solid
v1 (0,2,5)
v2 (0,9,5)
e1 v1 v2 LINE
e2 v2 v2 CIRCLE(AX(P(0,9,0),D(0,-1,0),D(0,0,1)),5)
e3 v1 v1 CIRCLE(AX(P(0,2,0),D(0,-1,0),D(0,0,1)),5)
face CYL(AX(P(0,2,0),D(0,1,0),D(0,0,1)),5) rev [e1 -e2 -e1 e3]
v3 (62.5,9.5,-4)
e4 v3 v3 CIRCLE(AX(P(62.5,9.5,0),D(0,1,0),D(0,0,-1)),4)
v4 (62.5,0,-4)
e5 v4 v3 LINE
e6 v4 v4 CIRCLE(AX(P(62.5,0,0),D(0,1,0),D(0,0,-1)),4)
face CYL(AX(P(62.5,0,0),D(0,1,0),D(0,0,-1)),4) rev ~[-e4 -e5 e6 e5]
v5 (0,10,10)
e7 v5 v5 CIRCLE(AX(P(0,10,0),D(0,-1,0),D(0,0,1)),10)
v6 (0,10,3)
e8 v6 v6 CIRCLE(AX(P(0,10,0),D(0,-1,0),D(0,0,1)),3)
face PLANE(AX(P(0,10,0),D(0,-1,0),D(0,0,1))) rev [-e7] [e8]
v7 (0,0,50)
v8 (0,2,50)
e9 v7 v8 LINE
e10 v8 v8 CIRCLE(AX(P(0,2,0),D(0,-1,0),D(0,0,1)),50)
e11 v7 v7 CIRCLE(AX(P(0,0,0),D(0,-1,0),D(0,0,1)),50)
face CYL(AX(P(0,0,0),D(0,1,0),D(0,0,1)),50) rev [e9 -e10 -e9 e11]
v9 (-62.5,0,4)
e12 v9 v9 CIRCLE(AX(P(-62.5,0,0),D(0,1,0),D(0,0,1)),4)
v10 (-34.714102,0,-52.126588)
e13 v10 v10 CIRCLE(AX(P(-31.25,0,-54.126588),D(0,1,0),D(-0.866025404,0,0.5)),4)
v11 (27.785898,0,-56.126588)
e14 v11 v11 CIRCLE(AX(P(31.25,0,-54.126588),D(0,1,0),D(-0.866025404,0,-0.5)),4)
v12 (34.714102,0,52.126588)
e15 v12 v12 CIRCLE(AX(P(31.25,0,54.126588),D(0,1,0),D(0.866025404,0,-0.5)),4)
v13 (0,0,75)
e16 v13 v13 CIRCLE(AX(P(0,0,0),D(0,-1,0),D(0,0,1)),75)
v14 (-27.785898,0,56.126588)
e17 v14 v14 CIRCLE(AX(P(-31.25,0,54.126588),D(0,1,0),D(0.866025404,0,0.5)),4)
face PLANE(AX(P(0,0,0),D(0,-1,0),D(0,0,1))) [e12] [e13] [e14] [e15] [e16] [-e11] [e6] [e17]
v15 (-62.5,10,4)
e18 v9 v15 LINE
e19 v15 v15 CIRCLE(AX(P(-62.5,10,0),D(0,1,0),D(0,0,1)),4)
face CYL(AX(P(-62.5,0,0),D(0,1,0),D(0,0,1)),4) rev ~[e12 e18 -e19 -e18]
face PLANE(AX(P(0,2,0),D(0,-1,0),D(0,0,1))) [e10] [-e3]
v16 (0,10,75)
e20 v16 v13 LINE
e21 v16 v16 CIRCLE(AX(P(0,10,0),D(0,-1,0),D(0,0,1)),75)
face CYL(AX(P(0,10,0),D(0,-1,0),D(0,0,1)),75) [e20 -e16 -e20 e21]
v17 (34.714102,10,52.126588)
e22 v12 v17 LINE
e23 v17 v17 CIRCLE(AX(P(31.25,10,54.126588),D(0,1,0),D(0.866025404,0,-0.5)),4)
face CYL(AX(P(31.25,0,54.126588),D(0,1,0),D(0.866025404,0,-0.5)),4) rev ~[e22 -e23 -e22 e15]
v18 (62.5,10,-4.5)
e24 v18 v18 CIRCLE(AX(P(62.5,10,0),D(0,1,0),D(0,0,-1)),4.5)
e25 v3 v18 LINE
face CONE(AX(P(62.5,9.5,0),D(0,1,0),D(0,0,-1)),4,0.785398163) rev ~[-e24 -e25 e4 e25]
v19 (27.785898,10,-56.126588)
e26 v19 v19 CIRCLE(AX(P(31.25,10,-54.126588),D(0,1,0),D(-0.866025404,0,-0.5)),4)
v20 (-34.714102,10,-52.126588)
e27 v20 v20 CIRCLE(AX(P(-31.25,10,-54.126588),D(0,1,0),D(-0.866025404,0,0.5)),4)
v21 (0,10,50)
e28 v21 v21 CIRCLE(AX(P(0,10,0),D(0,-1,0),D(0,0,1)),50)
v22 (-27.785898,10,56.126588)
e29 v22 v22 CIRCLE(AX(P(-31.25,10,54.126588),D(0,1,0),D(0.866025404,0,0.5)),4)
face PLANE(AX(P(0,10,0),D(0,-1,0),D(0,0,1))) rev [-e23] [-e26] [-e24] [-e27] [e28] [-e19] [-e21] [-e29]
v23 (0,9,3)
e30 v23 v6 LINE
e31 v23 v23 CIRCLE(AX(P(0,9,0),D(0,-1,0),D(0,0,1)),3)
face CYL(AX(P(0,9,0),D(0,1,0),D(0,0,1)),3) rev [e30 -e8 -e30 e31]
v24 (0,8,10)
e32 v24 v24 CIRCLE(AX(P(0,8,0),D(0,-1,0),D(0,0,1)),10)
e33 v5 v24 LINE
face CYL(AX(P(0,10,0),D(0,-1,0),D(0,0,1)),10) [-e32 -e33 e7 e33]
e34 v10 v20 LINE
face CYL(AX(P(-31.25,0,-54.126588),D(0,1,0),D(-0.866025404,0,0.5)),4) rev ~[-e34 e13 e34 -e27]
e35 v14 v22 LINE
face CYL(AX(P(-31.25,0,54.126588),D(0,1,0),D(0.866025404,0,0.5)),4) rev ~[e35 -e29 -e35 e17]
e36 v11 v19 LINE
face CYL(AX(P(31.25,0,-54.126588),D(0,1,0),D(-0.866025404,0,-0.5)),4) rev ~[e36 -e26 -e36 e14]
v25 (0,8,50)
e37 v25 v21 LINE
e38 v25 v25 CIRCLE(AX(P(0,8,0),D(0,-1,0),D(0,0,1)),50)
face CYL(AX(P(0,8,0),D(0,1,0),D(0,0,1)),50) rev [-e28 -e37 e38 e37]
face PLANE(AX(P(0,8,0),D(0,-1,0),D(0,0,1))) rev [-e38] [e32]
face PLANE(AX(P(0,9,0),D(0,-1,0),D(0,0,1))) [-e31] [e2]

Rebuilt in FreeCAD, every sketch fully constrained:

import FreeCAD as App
import Part
import Sketcher

V = App.Vector


def edges_at(feature, points):
    """Names of the edges that pass closest to the given points."""
    edges = feature.Shape.Edges
    near = lambda p: min(range(len(edges)), key=lambda i: edges[i].distToShape(Part.Vertex(*p))[0])
    return sorted({f"Edge{near(p) + 1}" for p in points})


def add_polygon(sketch, points):
    """Adds a closed chain of lines whose ends are joined by coincident constraints."""
    first, n = sketch.GeometryCount, len(points)
    for a, b in zip(points, points[1:] + points[:1]):
        sketch.addGeometry(Part.LineSegment(App.Vector(*a, 0), App.Vector(*b, 0)), False)
    for i in range(n):
        sketch.addConstraint(Sketcher.Constraint("Coincident", first + i, 2, first + (i + 1) % n, 1))

doc = App.newDocument("Part")
params = doc.addObject("Spreadsheet::Sheet", "Params")
for row, (alias, value) in enumerate([
    ("sketch1_width", "7 mm"),
    ("sketch1_width2", "1 mm"),
    ("sketch1_width3", "2 mm"),
    ("sketch1_height", "25 mm"),
    ("revolution_angle", "360 deg"),
    ("sketch2_diameter", "8 mm"),
    ("hole_diameter", "8 mm"),
    ("chamfer_size", "0.5 mm"),
], start=1):
    params.set(f"A{row}", alias)
    params.set(f"B{row}", "=" + value)
    params.setAlias(f"B{row}", alias)

body = doc.addObject("PartDesign::Body", "Body")

# Sketch on YZ plane
sketch1 = body.newObject("Sketcher::SketchObject", "Sketch")
sketch1.AttachmentSupport = (doc.getObject("YZ_Plane"), [""])
sketch1.MapMode = "FlatFace"
add_polygon(sketch1, [(2, 50), (2, 5), (9, 5), (9, 3), (10, 3), (10, 10), (8, 10), (8, 50), (10, 50), (10, 75), (0, 75), (0, 50)])  # lines 0-11
sketch1.addConstraint(Sketcher.Constraint("Vertical", 0))
sketch1.addConstraint(Sketcher.Constraint("Horizontal", 1))
sketch1.addConstraint(Sketcher.Constraint("Vertical", 2))
sketch1.addConstraint(Sketcher.Constraint("Horizontal", 3))
sketch1.addConstraint(Sketcher.Constraint("Vertical", 4))
sketch1.addConstraint(Sketcher.Constraint("Horizontal", 5))
sketch1.addConstraint(Sketcher.Constraint("Vertical", 6))
sketch1.addConstraint(Sketcher.Constraint("Horizontal", 7))
sketch1.addConstraint(Sketcher.Constraint("Vertical", 8))
sketch1.addConstraint(Sketcher.Constraint("Horizontal", 9))
sketch1.addConstraint(Sketcher.Constraint("Vertical", 10))
sketch1.addConstraint(Sketcher.Constraint("Horizontal", 11))
sketch1.addConstraint(Sketcher.Constraint("PointOnObject", 9, 2, -2))
sketch1.addConstraint(Sketcher.Constraint("Horizontal", 7, 2, 10, 2))
sketch1.addConstraint(Sketcher.Constraint("Vertical", 4, 2, 7, 2))
sketch1.addConstraint(Sketcher.Constraint("Equal", 7, 11))
sketch1.addConstraint(Sketcher.Constraint("Equal", 11, 2))
sketch1.addConstraint(Sketcher.Constraint("Equal", 1, 4))
sketch1.addConstraint(Sketcher.Constraint("DistanceX", 1, 1, 1, 2, 7.0))
sketch1.addConstraint(Sketcher.Constraint("DistanceX", 3, 1, 3, 2, 1.0))
sketch1.addConstraint(Sketcher.Constraint("DistanceX", 5, 2, 5, 1, 2.0))
sketch1.addConstraint(Sketcher.Constraint("DistanceY", 8, 1, 8, 2, 25.0))
sketch1.addConstraint(Sketcher.Constraint("DistanceY", -1, 1, 4, 2, 10.0))
sketch1.addConstraint(Sketcher.Constraint("DistanceY", 2, 2, 6, 2, 47.0))
sketch1.setExpression("Constraints[30]", "Params.sketch1_width")
sketch1.setExpression("Constraints[31]", "Params.sketch1_width2")
sketch1.setExpression("Constraints[32]", "Params.sketch1_width3")
sketch1.setExpression("Constraints[33]", "Params.sketch1_height")
revolution = body.newObject("PartDesign::Revolution", "Revolution")
revolution.Profile = sketch1
revolution.ReferenceAxis = (sketch1, ["H_Axis"])
revolution.setExpression("Angle", "Params.revolution_angle")

# Sketch on XZ plane
sketch2 = body.newObject("Sketcher::SketchObject", "Sketch001")
sketch2.AttachmentSupport = (doc.getObject("XZ_Plane"), [""])
sketch2.MapMode = "FlatFace"
sketch2.addGeometry(Part.Circle(V(62.5, 0, 0), V(0, 0, 1), 4), False)
sketch2.addConstraint(Sketcher.Constraint("PointOnObject", 0, 3, -1))
sketch2.addConstraint(Sketcher.Constraint("Diameter", 0, 8.0))
sketch2.addConstraint(Sketcher.Constraint("DistanceX", -1, 1, 0, 3, 62.5))
sketch2.setExpression("Constraints[1]", "Params.sketch2_diameter")
doc.recompute()
hole = body.newObject("PartDesign::Hole", "Hole")
hole.Profile = sketch2
hole.ThreadType = "None"
hole.setExpression("Diameter", "Params.hole_diameter")
hole.DepthType = "ThroughAll"
doc.recompute()

chamfer = body.newObject("PartDesign::Chamfer", "Chamfer")
chamfer.Base = (hole, edges_at(hole, [(62.5, 10, 4)]))
chamfer.setExpression("Size", "Params.chamfer_size")
doc.recompute()

polarpattern = body.newObject("PartDesign::PolarPattern", "PolarPattern")
polarpattern.Originals = [hole]
polarpattern.Axis = (doc.getObject("Y_Axis"), [""])
polarpattern.Angle = 360
polarpattern.Occurrences = 6
body.Tip = polarpattern

doc.recompute()
